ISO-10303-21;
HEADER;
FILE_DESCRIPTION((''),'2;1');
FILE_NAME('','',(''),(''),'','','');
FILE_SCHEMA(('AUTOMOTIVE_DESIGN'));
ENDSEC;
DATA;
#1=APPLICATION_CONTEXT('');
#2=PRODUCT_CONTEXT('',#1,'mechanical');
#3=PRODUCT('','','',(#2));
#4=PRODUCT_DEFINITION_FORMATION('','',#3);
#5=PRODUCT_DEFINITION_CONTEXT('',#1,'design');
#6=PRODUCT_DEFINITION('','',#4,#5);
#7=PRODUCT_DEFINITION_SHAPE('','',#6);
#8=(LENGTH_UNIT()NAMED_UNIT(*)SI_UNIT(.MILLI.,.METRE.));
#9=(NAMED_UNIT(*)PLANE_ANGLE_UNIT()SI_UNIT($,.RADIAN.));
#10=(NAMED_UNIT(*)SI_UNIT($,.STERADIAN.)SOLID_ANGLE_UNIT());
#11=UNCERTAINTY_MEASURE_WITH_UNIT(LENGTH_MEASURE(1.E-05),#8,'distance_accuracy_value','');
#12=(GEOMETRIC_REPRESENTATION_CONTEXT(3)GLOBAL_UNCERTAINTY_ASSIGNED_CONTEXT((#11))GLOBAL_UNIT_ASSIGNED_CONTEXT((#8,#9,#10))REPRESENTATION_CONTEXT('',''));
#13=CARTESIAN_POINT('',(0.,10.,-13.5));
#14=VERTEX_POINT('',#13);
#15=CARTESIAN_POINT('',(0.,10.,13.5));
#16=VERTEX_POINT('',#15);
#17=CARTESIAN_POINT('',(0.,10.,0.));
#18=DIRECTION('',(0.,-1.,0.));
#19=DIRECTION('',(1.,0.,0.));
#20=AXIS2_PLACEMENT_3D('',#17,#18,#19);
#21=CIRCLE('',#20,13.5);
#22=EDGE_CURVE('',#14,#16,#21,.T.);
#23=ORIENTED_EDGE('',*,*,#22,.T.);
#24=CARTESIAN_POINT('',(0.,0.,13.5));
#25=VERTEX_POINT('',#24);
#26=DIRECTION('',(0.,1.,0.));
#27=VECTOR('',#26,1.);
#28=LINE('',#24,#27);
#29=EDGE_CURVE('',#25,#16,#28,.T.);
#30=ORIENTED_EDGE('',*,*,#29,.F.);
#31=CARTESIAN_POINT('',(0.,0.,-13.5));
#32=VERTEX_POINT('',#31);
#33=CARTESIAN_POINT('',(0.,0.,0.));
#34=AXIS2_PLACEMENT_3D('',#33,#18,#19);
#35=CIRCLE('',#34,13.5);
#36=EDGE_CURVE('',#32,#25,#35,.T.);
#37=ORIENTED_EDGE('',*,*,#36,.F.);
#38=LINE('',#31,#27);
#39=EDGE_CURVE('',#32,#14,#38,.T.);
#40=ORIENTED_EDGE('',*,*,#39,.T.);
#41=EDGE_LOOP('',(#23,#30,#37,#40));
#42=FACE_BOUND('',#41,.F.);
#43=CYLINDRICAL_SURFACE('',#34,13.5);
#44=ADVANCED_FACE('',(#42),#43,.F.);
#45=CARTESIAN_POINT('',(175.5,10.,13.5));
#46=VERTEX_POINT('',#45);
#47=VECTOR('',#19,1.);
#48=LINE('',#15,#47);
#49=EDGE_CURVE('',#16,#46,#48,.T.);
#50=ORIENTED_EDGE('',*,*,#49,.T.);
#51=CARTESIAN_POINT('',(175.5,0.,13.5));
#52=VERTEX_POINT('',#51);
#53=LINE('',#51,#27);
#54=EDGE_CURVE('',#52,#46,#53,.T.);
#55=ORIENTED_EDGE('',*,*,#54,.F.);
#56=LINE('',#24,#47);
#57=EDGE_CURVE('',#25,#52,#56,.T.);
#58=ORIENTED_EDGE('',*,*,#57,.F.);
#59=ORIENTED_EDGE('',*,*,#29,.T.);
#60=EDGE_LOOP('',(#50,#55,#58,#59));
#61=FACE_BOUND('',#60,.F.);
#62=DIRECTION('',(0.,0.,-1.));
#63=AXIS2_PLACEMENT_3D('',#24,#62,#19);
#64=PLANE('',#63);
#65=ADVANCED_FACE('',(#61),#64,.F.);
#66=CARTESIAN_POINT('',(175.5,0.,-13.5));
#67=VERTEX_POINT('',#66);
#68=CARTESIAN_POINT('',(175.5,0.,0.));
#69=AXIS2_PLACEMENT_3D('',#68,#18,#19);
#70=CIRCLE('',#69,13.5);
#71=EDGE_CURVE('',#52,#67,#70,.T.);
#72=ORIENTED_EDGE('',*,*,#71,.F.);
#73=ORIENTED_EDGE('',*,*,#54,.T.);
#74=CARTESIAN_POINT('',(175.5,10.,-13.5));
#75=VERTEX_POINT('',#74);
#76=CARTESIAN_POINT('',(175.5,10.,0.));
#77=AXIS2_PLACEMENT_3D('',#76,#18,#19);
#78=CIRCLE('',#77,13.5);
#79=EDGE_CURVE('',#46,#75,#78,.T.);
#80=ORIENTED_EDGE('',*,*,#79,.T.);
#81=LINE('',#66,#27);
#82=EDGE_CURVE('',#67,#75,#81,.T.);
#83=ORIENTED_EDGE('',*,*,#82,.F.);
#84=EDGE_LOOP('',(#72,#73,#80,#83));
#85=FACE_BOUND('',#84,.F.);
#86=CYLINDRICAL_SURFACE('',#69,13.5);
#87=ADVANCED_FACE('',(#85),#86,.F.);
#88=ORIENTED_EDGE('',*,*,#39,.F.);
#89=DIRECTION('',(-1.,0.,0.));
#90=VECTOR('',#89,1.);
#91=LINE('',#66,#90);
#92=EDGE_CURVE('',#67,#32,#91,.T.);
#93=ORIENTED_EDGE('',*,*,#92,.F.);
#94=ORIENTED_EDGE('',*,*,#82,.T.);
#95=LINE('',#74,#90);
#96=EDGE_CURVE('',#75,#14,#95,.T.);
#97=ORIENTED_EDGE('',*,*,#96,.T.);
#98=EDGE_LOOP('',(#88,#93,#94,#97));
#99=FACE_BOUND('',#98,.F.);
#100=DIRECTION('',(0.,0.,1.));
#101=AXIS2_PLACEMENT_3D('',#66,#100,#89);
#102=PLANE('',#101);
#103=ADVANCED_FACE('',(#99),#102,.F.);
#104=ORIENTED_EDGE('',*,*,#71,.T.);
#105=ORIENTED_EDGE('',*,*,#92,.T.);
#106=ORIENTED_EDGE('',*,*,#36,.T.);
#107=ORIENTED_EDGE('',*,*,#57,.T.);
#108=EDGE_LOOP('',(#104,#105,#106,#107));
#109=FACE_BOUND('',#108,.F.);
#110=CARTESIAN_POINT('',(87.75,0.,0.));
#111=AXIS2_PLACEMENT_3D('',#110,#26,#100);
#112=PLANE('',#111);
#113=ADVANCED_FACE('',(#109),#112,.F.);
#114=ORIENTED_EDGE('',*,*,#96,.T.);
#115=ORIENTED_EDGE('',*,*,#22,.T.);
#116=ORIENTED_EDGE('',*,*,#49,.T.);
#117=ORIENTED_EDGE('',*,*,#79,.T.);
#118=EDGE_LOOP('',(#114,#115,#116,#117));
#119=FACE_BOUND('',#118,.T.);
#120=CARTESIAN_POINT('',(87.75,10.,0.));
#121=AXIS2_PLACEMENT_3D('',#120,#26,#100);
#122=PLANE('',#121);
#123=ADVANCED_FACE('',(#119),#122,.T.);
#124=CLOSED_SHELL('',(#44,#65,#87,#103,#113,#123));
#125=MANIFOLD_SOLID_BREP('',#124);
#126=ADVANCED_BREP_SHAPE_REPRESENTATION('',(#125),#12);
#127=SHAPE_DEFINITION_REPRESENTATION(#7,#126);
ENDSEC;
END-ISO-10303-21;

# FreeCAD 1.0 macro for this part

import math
import FreeCAD as App
import Part
import Sketcher

V = App.Vector
Q = App.Units.Quantity

doc = App.newDocument("Part")
body = doc.addObject("PartDesign::Body", "Body")

# Sketch on XZ plane
sketch1 = body.newObject("Sketcher::SketchObject", "Sketch")
sketch1.AttachmentSupport = (doc.getObject("XZ_Plane"), [""])
sketch1.MapMode = "FlatFace"
sketch1.addGeometry(Part.LineSegment(V(176, 14, 0), V(0, 14, 0)), False)
sketch1.addGeometry(Part.ArcOfCircle(Part.Circle(V(0, 0, 0), V(0, 0, 1), 14), math.radians(-90), math.radians(90)), False)
sketch1.addGeometry(Part.LineSegment(V(0, -14, 0), V(176, -14, 0)), False)
sketch1.addGeometry(Part.ArcOfCircle(Part.Circle(V(176, 0, 0), V(0, 0, 1), 14), math.radians(90), math.radians(270)), False)
sketch1.addConstraint(Sketcher.Constraint("Tangent", 0, 2, 1, 2))
sketch1.addConstraint(Sketcher.Constraint("Tangent", 1, 1, 2, 1))
sketch1.addConstraint(Sketcher.Constraint("Tangent", 2, 2, 3, 2))
sketch1.addConstraint(Sketcher.Constraint("Tangent", 3, 1, 0, 1))
sketch1.addConstraint(Sketcher.Constraint("Horizontal", 0))
sketch1.addConstraint(Sketcher.Constraint("Horizontal", 2))
sketch1.addConstraint(Sketcher.Constraint("Coincident", 1, 3, -1, 1))
sketch1.addConstraint(Sketcher.Constraint("Radius", 1, Q("13.5 mm")))
sketch1.addConstraint(Sketcher.Constraint("DistanceX", 0, 2, 0, 1, Q("175.5 mm")))
pad1 = body.newObject("PartDesign::Pad", "Pad")
pad1.Profile = sketch1
pad1.Length = 10
pad1.Reversed = True

doc.recompute()
